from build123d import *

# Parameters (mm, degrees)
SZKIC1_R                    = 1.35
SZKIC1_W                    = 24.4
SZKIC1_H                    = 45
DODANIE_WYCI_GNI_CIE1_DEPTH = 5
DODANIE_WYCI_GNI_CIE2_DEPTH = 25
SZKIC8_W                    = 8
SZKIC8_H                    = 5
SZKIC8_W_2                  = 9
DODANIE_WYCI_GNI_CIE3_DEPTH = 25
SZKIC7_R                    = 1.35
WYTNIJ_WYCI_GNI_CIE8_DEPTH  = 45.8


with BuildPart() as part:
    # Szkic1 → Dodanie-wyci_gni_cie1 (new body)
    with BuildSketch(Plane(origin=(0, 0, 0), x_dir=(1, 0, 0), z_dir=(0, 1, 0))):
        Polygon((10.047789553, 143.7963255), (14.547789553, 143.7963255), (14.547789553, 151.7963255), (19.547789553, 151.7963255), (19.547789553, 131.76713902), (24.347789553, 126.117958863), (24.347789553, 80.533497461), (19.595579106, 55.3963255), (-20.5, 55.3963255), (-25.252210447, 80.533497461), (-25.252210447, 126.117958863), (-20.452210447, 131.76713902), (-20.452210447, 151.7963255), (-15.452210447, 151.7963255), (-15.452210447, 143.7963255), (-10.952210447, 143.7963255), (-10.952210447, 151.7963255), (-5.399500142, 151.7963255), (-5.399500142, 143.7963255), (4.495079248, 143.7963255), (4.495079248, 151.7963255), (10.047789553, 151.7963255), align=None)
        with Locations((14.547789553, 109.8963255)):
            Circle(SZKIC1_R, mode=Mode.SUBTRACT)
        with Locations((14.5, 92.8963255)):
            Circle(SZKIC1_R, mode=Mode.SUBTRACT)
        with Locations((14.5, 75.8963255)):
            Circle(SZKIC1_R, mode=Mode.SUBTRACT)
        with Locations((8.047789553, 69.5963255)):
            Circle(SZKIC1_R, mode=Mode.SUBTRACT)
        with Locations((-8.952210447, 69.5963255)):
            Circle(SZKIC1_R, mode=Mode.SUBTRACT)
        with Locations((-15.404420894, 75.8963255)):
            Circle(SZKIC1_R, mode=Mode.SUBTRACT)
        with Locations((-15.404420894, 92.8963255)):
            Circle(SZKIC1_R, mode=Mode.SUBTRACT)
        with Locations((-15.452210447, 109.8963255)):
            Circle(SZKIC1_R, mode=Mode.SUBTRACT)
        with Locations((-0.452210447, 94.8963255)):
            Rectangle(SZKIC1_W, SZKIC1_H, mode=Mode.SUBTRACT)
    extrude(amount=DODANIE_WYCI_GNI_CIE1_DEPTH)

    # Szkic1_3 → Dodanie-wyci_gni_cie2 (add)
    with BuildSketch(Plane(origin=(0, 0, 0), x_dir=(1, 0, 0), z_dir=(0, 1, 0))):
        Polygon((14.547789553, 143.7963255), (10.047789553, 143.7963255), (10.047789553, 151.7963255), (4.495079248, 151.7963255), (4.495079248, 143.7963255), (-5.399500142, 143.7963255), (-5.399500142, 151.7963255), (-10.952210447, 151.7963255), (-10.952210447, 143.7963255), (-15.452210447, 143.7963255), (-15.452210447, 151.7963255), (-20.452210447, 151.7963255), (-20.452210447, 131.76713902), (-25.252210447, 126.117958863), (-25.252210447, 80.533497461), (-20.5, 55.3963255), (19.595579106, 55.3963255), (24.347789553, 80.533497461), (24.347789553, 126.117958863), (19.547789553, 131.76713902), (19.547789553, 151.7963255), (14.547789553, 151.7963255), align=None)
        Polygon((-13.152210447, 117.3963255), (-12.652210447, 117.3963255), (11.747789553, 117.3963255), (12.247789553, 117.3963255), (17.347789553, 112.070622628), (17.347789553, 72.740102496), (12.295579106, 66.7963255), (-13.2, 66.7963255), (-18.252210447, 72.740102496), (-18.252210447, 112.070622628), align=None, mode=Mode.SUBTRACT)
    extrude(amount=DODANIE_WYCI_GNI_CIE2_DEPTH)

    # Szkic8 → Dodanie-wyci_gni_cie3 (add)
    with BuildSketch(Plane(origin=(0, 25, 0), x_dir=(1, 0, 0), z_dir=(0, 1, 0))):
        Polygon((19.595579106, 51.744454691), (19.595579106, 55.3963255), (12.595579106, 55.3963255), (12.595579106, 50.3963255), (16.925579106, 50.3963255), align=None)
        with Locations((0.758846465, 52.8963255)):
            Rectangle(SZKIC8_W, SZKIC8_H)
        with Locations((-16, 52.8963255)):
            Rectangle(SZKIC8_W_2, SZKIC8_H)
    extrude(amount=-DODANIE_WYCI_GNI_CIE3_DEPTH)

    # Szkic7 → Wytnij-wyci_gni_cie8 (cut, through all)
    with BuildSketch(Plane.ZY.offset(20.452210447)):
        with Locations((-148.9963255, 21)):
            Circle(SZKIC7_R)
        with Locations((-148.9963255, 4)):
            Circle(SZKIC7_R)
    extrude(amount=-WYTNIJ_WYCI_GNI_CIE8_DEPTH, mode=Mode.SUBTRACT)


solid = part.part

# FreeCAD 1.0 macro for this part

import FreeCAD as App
import Part
import Sketcher
Q = App.Units.Quantity


def add_polygon(sketch, points):
    """Adds a closed chain of lines whose ends are joined by coincident constraints."""
    first, n = sketch.GeometryCount, len(points)
    for a, b in zip(points, points[1:] + points[:1]):
        sketch.addGeometry(Part.LineSegment(App.Vector(*a, 0), App.Vector(*b, 0)), False)
    for i in range(n):
        sketch.addConstraint(Sketcher.Constraint("Coincident", first + i, 2, first + (i + 1) % n, 1))

doc = App.newDocument("Part")
params = doc.addObject("Spreadsheet::Sheet", "Params")
for row, (alias, value) in enumerate([
    ("sketch1_diameter", "2.7 mm"),
    ("sketch1_width", "5 mm"),
    ("sketch1_height", "8 mm"),
    ("sketch1_height2", "45 mm"),
    ("sketch1_width2", "4.5 mm"),
    ("pad1_length", "5 mm"),
    ("sketch2_width", "5 mm"),
    ("sketch2_height", "8 mm"),
    ("sketch2_width2", "4.5 mm"),
    ("sketch2_width3", "25.4 mm"),
    ("pad2_length", "25 mm"),
    ("sketch3_width", "7 mm"),
    ("sketch3_width2", "8 mm"),
    ("sketch3_width3", "9 mm"),
    ("sketch3_height", "5 mm"),
    ("sketch3_width4", "4.33 mm"),
    ("pad3_length", "25 mm"),
    ("sketch4_diameter", "2.7 mm"),
], start=1):
    params.set(f"A{row}", alias)
    params.set(f"B{row}", "=" + value)
    params.setAlias(f"B{row}", alias)

body = doc.addObject("PartDesign::Body", "Body")

sketch1 = body.newObject("Sketcher::SketchObject", "Sketch")
sketch1.AttachmentSupport = (doc.getObject("XZ_Plane"), [""])
sketch1.MapMode = "FlatFace"
add_polygon(sketch1, [(14.54779, -143.796325), (10.04779, -143.796325), (10.04779, -151.796325), (4.495079, -151.796325), (4.495079, -143.796325), (-5.3995, -143.796325), (-5.3995, -151.796325), (-10.95221, -151.796325), (-10.95221, -143.796325), (-15.45221, -143.796325), (-15.45221, -151.796325), (-20.45221, -151.796325), (-20.45221, -131.767139), (-25.25221, -126.117959), (-25.25221, -80.533497), (-20.5, -55.396326), (19.595579, -55.396326), (24.34779, -80.533497), (24.34779, -126.117959), (19.54779, -131.767139), (19.54779, -151.796325), (14.54779, -151.796325)])
sketch1.addGeometry(Part.Circle(App.Vector(8.04779, -69.596326, 0), App.Vector(0, 0, 1), 1.35), False)
sketch1.addGeometry(Part.Circle(App.Vector(14.5, -75.896326, 0), App.Vector(0, 0, 1), 1.35), False)
sketch1.addGeometry(Part.Circle(App.Vector(-8.95221, -69.596326, 0), App.Vector(0, 0, 1), 1.35), False)
sketch1.addGeometry(Part.Circle(App.Vector(-15.404421, -75.896326, 0), App.Vector(0, 0, 1), 1.35), False)
sketch1.addGeometry(Part.Circle(App.Vector(14.5, -92.896326, 0), App.Vector(0, 0, 1), 1.35), False)
sketch1.addGeometry(Part.Circle(App.Vector(14.54779, -109.896326, 0), App.Vector(0, 0, 1), 1.35), False)
add_polygon(sketch1, [(-12.65221, -72.396326), (-12.65221, -117.396326), (11.74779, -117.396326), (11.74779, -72.396326)])
sketch1.addGeometry(Part.Circle(App.Vector(-15.404421, -92.896326, 0), App.Vector(0, 0, 1), 1.35), False)
sketch1.addGeometry(Part.Circle(App.Vector(-15.45221, -109.896326, 0), App.Vector(0, 0, 1), 1.35), False)
sketch1.addConstraint([
    Sketcher.Constraint("Horizontal", 0),
    Sketcher.Constraint("Vertical", 1),
    Sketcher.Constraint("Horizontal", 2),
    Sketcher.Constraint("Vertical", 3),
    Sketcher.Constraint("Horizontal", 4),
    Sketcher.Constraint("Vertical", 5),
    Sketcher.Constraint("Horizontal", 6),
    Sketcher.Constraint("Vertical", 7),
    Sketcher.Constraint("Horizontal", 8),
    Sketcher.Constraint("Vertical", 9),
    Sketcher.Constraint("Horizontal", 10),
    Sketcher.Constraint("Vertical", 11),
    Sketcher.Constraint("Vertical", 13),
    Sketcher.Constraint("Horizontal", 15),
    Sketcher.Constraint("Vertical", 17),
    Sketcher.Constraint("Vertical", 19),
    Sketcher.Constraint("Horizontal", 20),
    Sketcher.Constraint("Vertical", 21),
    Sketcher.Constraint("Vertical", 28),
    Sketcher.Constraint("Horizontal", 29),
    Sketcher.Constraint("Vertical", 30),
    Sketcher.Constraint("Horizontal", 31),
    Sketcher.Constraint("Equal", 22, 23),
    Sketcher.Constraint("Equal", 23, 24),
    Sketcher.Constraint("Equal", 24, 25),
    Sketcher.Constraint("Equal", 25, 26),
    Sketcher.Constraint("Equal", 26, 27),
    Sketcher.Constraint("Equal", 27, 32),
    Sketcher.Constraint("Equal", 32, 33),
    Sketcher.Constraint("Horizontal", 22, 3, 24, 3),
    Sketcher.Constraint("Horizontal", 23, 3, 25, 3),
    Sketcher.Constraint("Horizontal", 26, 3, 32, 3),
    Sketcher.Constraint("Horizontal", 27, 3, 33, 3),
    Sketcher.Constraint("Horizontal", 0, 2, 3, 2),
    Sketcher.Constraint("Horizontal", 2, 2, 5, 2),
    Sketcher.Constraint("Horizontal", 4, 2, 7, 2),
    Sketcher.Constraint("Horizontal", 6, 2, 9, 2),
    Sketcher.Constraint("Horizontal", 13, 2, 16, 2),
    Sketcher.Constraint("Horizontal", 12, 2, 17, 2),
    Sketcher.Constraint("Horizontal", 11, 2, 18, 2),
    Sketcher.Constraint("Horizontal", 10, 2, 19, 2),
    Sketcher.Constraint("Vertical", 23, 3, 26, 3),
    Sketcher.Constraint("Vertical", 25, 3, 32, 3),
    Sketcher.Constraint("Vertical", 33, 3, 8, 2),
    Sketcher.Constraint("Vertical", 27, 3, 20, 2),
    Sketcher.Constraint("Equal", 2, 6),
    Sketcher.Constraint("Equal", 0, 8),
    Sketcher.Constraint("Equal", 10, 20),
    Sketcher.Constraint("Equal", 14, 16),
    Sketcher.Constraint("Equal", 12, 18),
    Sketcher.Constraint("Diameter", 22, 2.7),
    Sketcher.Constraint("DistanceX", 10, 2, 10, 1, 5.0),
    Sketcher.Constraint("DistanceY", 1, 2, 1, 1, 8.0),
    Sketcher.Constraint("DistanceY", 28, 2, 28, 1, 45.0),
    Sketcher.Constraint("DistanceX", 0, 2, 0, 1, 4.5),
    Sketcher.Constraint("DistanceX", 29, 1, 29, 2, 24.4),
    Sketcher.Constraint("DistanceX", 24, 3, 22, 3, 17.0),
    Sketcher.Constraint("DistanceY", 26, 3, 23, 3, 17.0),
    Sketcher.Constraint("DistanceY", 27, 3, 26, 3, 17.0),
    Sketcher.Constraint("DistanceX", 33, 3, 27, 3, 30.0),
    Sketcher.Constraint("DistanceY", 30, 2, 15, 2, 17.0),
    Sketcher.Constraint("DistanceX", -1, 1, 23, 3, 14.5),
    Sketcher.Constraint("DistanceX", 14, 2, -1, 1, 20.5),
    Sketcher.Constraint("DistanceY", 23, 3, 22, 3, 6.3),
    Sketcher.Constraint("DistanceX", 22, 3, 27, 3, 6.5),
    Sketcher.Constraint("DistanceY", 0, 2, 27, 3, 33.9),
    Sketcher.Constraint("DistanceX", 12, 2, 11, 2, 4.8),
    Sketcher.Constraint("DistanceY", 24, 3, 14, 2, 14.2),
    Sketcher.Constraint("DistanceX", 33, 3, 28, 2, 2.8),
    Sketcher.Constraint("DistanceX", 2, 2, 2, 1, 5.55271),
    Sketcher.Constraint("DistanceX", 15, 1, 15, 2, 40.095579),
    Sketcher.Constraint("DistanceY", 13, 1, 13, 2, 45.584461),
    Sketcher.Constraint("DistanceY", 11, 1, 11, 2, 20.029186),
    Sketcher.Constraint("DistanceX", 25, 3, -1, 1, 15.404421),
    Sketcher.Constraint("DistanceY", 11, 2, -1, 1, 131.767139),
    Sketcher.Constraint("DistanceY", 12, 2, -1, 1, 126.117959),
])
sketch1.setExpression("Constraints[76]", "Params.sketch1_diameter")
sketch1.setExpression("Constraints[77]", "Params.sketch1_width")
sketch1.setExpression("Constraints[78]", "Params.sketch1_height")
sketch1.setExpression("Constraints[79]", "Params.sketch1_height2")
sketch1.setExpression("Constraints[80]", "Params.sketch1_width2")
pad1 = body.newObject("PartDesign::Pad", "Pad")
pad1.Profile = sketch1
pad1.setExpression("Length", "Params.pad1_length")
pad1.Reversed = True

sketch2 = body.newObject("Sketcher::SketchObject", "Sketch001")
sketch2.AttachmentSupport = (doc.getObject("XZ_Plane"), [""])
sketch2.MapMode = "FlatFace"
add_polygon(sketch2, [(14.54779, -143.796325), (10.04779, -143.796325), (10.04779, -151.796325), (4.495079, -151.796325), (4.495079, -143.796325), (-5.3995, -143.796325), (-5.3995, -151.796325), (-10.95221, -151.796325), (-10.95221, -143.796325), (-15.45221, -143.796325), (-15.45221, -151.796325), (-20.45221, -151.796325), (-20.45221, -131.767139), (-25.25221, -126.117959), (-25.25221, -80.533497), (-20.5, -55.396326), (19.595579, -55.396326), (24.34779, -80.533497), (24.34779, -126.117959), (19.54779, -131.767139), (19.54779, -151.796325), (14.54779, -151.796325)])
add_polygon(sketch2, [(-18.25221, -112.070623), (-13.15221, -117.396326), (12.24779, -117.396326), (17.34779, -112.070623), (17.34779, -72.740102), (12.295579, -66.796325), (-13.2, -66.796325), (-18.25221, -72.740102)])
sketch2.addConstraint([
    Sketcher.Constraint("Horizontal", 0),
    Sketcher.Constraint("Vertical", 1),
    Sketcher.Constraint("Horizontal", 2),
    Sketcher.Constraint("Vertical", 3),
    Sketcher.Constraint("Horizontal", 4),
    Sketcher.Constraint("Vertical", 5),
    Sketcher.Constraint("Horizontal", 6),
    Sketcher.Constraint("Vertical", 7),
    Sketcher.Constraint("Horizontal", 8),
    Sketcher.Constraint("Vertical", 9),
    Sketcher.Constraint("Horizontal", 10),
    Sketcher.Constraint("Vertical", 11),
    Sketcher.Constraint("Vertical", 13),
    Sketcher.Constraint("Horizontal", 15),
    Sketcher.Constraint("Vertical", 17),
    Sketcher.Constraint("Vertical", 19),
    Sketcher.Constraint("Horizontal", 20),
    Sketcher.Constraint("Vertical", 21),
    Sketcher.Constraint("Horizontal", 23),
    Sketcher.Constraint("Vertical", 25),
    Sketcher.Constraint("Horizontal", 27),
    Sketcher.Constraint("Vertical", 29),
    Sketcher.Constraint("Horizontal", 0, 2, 3, 2),
    Sketcher.Constraint("Horizontal", 2, 2, 5, 2),
    Sketcher.Constraint("Horizontal", 4, 2, 7, 2),
    Sketcher.Constraint("Horizontal", 6, 2, 9, 2),
    Sketcher.Constraint("Horizontal", 13, 2, 16, 2),
    Sketcher.Constraint("Horizontal", 12, 2, 17, 2),
    Sketcher.Constraint("Horizontal", 11, 2, 18, 2),
    Sketcher.Constraint("Horizontal", 10, 2, 19, 2),
    Sketcher.Constraint("Horizontal", 25, 2, 28, 2),
    Sketcher.Constraint("Horizontal", 24, 2, 29, 2),
    Sketcher.Constraint("Equal", 2, 6),
    Sketcher.Constraint("Equal", 0, 8),
    Sketcher.Constraint("Equal", 10, 20),
    Sketcher.Constraint("Equal", 14, 16),
    Sketcher.Constraint("Equal", 12, 18),
    Sketcher.Constraint("Equal", 22, 24),
    Sketcher.Constraint("Equal", 26, 28),
    Sketcher.Constraint("DistanceX", 10, 2, 10, 1, 5.0),
    Sketcher.Constraint("DistanceY", 1, 2, 1, 1, 8.0),
    Sketcher.Constraint("DistanceX", 0, 2, 0, 1, 4.5),
    Sketcher.Constraint("DistanceX", 23, 1, 23, 2, 25.4),
    Sketcher.Constraint("DistanceX", 6, 2, 1, 2, 21.0),
    Sketcher.Constraint("DistanceX", 24, 2, 17, 2, 7.0),
    Sketcher.Constraint("DistanceX", 13, 2, 28, 2, 7.0),
    Sketcher.Constraint("DistanceX", 14, 2, -1, 1, 20.5),
    Sketcher.Constraint("DistanceX", 27, 2, -1, 1, 13.2),
    Sketcher.Constraint("DistanceX", 12, 2, 11, 2, 4.8),
    Sketcher.Constraint("DistanceY", 8, 2, 14, 2, 88.4),
    Sketcher.Constraint("DistanceY", 7, 2, 22, 2, 26.4),
    Sketcher.Constraint("DistanceY", 26, 2, 15, 2, 11.4),
    Sketcher.Constraint("DistanceX", 2, 2, 2, 1, 5.55271),
    Sketcher.Constraint("DistanceX", 15, 1, 15, 2, 40.095579),
    Sketcher.Constraint("DistanceY", 13, 1, 13, 2, 45.584461),
    Sketcher.Constraint("DistanceY", 25, 1, 25, 2, 39.33052),
    Sketcher.Constraint("DistanceY", 11, 1, 11, 2, 20.029186),
    Sketcher.Constraint("DistanceY", 11, 2, -1, 1, 131.767139),
    Sketcher.Constraint("DistanceY", 12, 2, -1, 1, 126.117959),
    Sketcher.Constraint("Distance", 22, 7.373813),
])
sketch2.setExpression("Constraints[69]", "Params.sketch2_width")
sketch2.setExpression("Constraints[70]", "Params.sketch2_height")
sketch2.setExpression("Constraints[71]", "Params.sketch2_width2")
sketch2.setExpression("Constraints[72]", "Params.sketch2_width3")
pad2 = body.newObject("PartDesign::Pad", "Pad001")
pad2.Profile = sketch2
pad2.setExpression("Length", "Params.pad2_length")
pad2.Reversed = True

sketch3 = body.newObject("Sketcher::SketchObject", "Sketch002")
sketch3.AttachmentSupport = (doc.getObject("XZ_Plane"), [""])
sketch3.MapMode = "FlatFace"
sketch3.AttachmentOffset = App.Placement(App.Vector(0, 0, -25), App.Rotation())
add_polygon(sketch3, [(19.595579, -51.744455), (19.595579, -55.396326), (12.595579, -55.396326), (12.595579, -50.396326), (16.925579, -50.396326)])
add_polygon(sketch3, [(-3.241154, -55.396326), (-3.241154, -50.396326), (4.758846, -50.396326), (4.758846, -55.396326)])
add_polygon(sketch3, [(-20.5, -55.396326), (-20.5, -50.396326), (-11.5, -50.396326), (-11.5, -55.396326)])
sketch3.addConstraint([
    Sketcher.Constraint("Vertical", 0),
    Sketcher.Constraint("Horizontal", 1),
    Sketcher.Constraint("Vertical", 2),
    Sketcher.Constraint("Horizontal", 3),
    Sketcher.Constraint("Vertical", 5),
    Sketcher.Constraint("Horizontal", 6),
    Sketcher.Constraint("Vertical", 7),
    Sketcher.Constraint("Horizontal", 8),
    Sketcher.Constraint("Vertical", 9),
    Sketcher.Constraint("Horizontal", 10),
    Sketcher.Constraint("Vertical", 11),
    Sketcher.Constraint("Horizontal", 12),
    Sketcher.Constraint("Horizontal", 3, 2, 5, 2),
    Sketcher.Constraint("Horizontal", 1, 2, 7, 2),
    Sketcher.Constraint("Horizontal", 6, 2, 9, 2),
    Sketcher.Constraint("Horizontal", 8, 2, 11, 2),
    Sketcher.Constraint("DistanceX", 1, 2, 1, 1, 7.0),
    Sketcher.Constraint("DistanceX", 6, 1, 6, 2, 8.0),
    Sketcher.Constraint("DistanceX", 10, 1, 10, 2, 9.0),
    Sketcher.Constraint("DistanceY", 2, 1, 2, 2, 5.0),
    Sketcher.Constraint("DistanceX", 3, 1, 3, 2, 4.33),
    Sketcher.Constraint("DistanceX", 9, 2, -1, 1, 20.5),
    Sketcher.Constraint("Angle", 4, Q("-26.79 deg")),
    Sketcher.Constraint("DistanceX", -1, 1, 0, 2, 19.595579),
    Sketcher.Constraint("DistanceY", 0, 2, -1, 1, 55.396326),
    Sketcher.Constraint("DistanceX", 5, 2, -1, 1, 3.241154),
])
sketch3.setExpression("Constraints[29]", "Params.sketch3_width")
sketch3.setExpression("Constraints[30]", "Params.sketch3_width2")
sketch3.setExpression("Constraints[31]", "Params.sketch3_width3")
sketch3.setExpression("Constraints[32]", "Params.sketch3_height")
sketch3.setExpression("Constraints[33]", "Params.sketch3_width4")
pad3 = body.newObject("PartDesign::Pad", "Pad002")
pad3.Profile = sketch3
pad3.setExpression("Length", "Params.pad3_length")

sketch4 = body.newObject("Sketcher::SketchObject", "Sketch003")
sketch4.AttachmentSupport = (doc.getObject("YZ_Plane"), [""])
sketch4.MapMode = "FlatFace"
sketch4.AttachmentOffset = App.Placement(App.Vector(0, 0, -20.45221), App.Rotation())
sketch4.addGeometry([
    Part.Circle(App.Vector(21, -148.996326, 0), App.Vector(0, 0, 1), 1.35),
    Part.Circle(App.Vector(4, -148.996326, 0), App.Vector(0, 0, 1), 1.35),
], False)
sketch4.addConstraint([
    Sketcher.Constraint("Equal", 0, 1),
    Sketcher.Constraint("Horizontal", 0, 3, 1, 3),
    Sketcher.Constraint("Diameter", 0, 2.7),
    Sketcher.Constraint("DistanceX", -1, 1, 0, 3, 21.0),
    Sketcher.Constraint("DistanceX", -1, 1, 1, 3, 4.0),
    Sketcher.Constraint("DistanceY", 0, 3, -1, 1, 148.996326),
])
sketch4.setExpression("Constraints[2]", "Params.sketch4_diameter")
pocket1 = body.newObject("PartDesign::Pocket", "Pocket")
pocket1.Profile = sketch4
pocket1.Type = "ThroughAll"
pocket1.Reversed = True

doc.recompute()
